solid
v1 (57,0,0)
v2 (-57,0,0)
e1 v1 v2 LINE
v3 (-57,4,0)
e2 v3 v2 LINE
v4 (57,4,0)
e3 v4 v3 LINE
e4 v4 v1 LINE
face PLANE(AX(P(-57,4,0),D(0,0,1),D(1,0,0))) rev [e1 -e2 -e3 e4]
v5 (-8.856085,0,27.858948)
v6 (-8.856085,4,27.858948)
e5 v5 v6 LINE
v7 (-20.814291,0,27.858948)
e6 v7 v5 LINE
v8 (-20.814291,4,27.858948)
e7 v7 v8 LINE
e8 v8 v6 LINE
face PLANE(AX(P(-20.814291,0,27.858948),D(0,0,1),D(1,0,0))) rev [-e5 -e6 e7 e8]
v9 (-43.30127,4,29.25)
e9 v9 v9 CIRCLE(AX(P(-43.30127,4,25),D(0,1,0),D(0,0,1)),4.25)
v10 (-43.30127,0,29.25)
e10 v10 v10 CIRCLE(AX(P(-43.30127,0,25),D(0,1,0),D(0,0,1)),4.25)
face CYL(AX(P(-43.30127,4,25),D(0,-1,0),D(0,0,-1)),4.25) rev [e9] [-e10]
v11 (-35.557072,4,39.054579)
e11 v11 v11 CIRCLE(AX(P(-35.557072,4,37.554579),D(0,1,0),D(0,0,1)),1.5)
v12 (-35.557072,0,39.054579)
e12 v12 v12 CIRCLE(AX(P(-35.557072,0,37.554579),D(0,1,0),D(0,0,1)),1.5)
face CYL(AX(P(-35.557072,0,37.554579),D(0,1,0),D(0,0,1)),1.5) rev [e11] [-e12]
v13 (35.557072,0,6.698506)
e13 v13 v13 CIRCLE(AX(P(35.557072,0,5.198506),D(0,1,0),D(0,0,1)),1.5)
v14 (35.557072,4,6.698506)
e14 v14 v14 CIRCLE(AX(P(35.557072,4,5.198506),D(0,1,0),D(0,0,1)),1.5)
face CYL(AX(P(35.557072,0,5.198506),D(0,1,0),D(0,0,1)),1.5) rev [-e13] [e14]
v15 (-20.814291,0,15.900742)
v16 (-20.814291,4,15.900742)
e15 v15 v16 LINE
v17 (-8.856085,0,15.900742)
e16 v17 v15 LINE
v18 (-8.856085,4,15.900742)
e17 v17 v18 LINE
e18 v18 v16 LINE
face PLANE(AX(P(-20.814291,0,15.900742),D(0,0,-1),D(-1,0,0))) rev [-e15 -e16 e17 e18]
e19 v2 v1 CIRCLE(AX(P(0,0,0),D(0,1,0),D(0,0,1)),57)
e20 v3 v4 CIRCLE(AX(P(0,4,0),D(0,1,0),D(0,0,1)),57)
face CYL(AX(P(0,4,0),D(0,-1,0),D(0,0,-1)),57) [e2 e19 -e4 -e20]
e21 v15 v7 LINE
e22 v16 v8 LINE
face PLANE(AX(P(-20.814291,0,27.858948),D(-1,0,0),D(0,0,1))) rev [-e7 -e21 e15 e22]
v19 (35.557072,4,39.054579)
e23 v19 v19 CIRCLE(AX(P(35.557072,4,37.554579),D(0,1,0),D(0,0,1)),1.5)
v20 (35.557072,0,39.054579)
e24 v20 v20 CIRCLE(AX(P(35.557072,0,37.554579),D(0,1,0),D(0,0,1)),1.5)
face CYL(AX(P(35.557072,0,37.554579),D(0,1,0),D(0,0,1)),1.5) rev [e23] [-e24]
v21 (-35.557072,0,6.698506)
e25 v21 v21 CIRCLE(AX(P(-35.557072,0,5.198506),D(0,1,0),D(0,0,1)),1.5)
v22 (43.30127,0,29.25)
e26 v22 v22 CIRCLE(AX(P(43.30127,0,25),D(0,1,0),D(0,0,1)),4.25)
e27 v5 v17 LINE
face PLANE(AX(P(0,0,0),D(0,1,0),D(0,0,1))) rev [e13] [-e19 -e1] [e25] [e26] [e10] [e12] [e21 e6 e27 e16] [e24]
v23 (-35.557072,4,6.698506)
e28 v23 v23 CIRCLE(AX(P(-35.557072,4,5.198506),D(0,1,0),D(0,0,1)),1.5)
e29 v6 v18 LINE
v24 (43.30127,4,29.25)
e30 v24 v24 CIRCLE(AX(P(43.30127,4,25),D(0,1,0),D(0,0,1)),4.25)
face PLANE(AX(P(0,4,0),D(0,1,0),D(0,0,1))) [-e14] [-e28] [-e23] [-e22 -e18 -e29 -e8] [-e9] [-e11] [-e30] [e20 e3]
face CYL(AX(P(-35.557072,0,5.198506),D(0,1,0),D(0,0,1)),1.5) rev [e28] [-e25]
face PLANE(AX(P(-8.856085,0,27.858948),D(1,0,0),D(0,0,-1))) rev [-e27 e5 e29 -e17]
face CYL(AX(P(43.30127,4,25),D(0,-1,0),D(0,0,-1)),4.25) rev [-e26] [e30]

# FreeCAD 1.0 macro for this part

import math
import FreeCAD as App
import Part
import Sketcher
from FreeCAD import Vector


def add_polygon(sketch, points):
    """Adds a closed chain of lines whose ends are joined by coincident constraints."""
    first, n = sketch.GeometryCount, len(points)
    for a, b in zip(points, points[1:] + points[:1]):
        sketch.addGeometry(Part.LineSegment(App.Vector(*a, 0), App.Vector(*b, 0)), False)
    for i in range(n):
        sketch.addConstraint(Sketcher.Constraint("Coincident", first + i, 2, first + (i + 1) % n, 1))

doc = App.newDocument("Part")
body = doc.addObject("PartDesign::Body", "Body")

# Sketch on XZ plane
sketch1 = body.newObject("Sketcher::SketchObject", "Sketch")
sketch1.AttachmentSupport = (doc.getObject("XZ_Plane"), [""])
sketch1.MapMode = "FlatFace"
sketch1.addGeometry(Part.LineSegment(Vector(57, 0, 0), Vector(-57, 0, 0)), False)  # 0
sketch1.addGeometry(Part.ArcOfCircle(Part.Circle(Vector(0, 0, 0), Vector(0, 0, 1), 57), math.radians(0), math.radians(180)), False)  # 1
sketch1.addGeometry(Part.Circle(Vector(43.3, 25, 0), Vector(0, 0, 1), 4.2), False)  # 2
sketch1.addGeometry(Part.Circle(Vector(-43.3, 25, 0), Vector(0, 0, 1), 4.2), False)  # 3
add_polygon(sketch1, [(-31.2, 35), (-31.2, 10), (31.2, 10), (31.2, 35)])  # lines 4-7
sketch1.addConstraint(Sketcher.Constraint("Coincident", 0, 1, 1, 1))
sketch1.addConstraint(Sketcher.Constraint("Coincident", 1, 2, 0, 2))
sketch1.addConstraint(Sketcher.Constraint("Horizontal", 0))
sketch1.addConstraint(Sketcher.Constraint("Vertical", 4))
sketch1.addConstraint(Sketcher.Constraint("Horizontal", 5))
sketch1.addConstraint(Sketcher.Constraint("Vertical", 6))
sketch1.addConstraint(Sketcher.Constraint("Horizontal", 7))
sketch1.addConstraint(Sketcher.Constraint("Coincident", 1, 3, -1, 1))
sketch1.addConstraint(Sketcher.Constraint("Equal", 2, 3))
sketch1.addConstraint(Sketcher.Constraint("Symmetric", 2, 3, 3, 3, -2))
sketch1.addConstraint(Sketcher.Constraint("PointOnObject", 0, 1, -1))
sketch1.addConstraint(Sketcher.Constraint("Radius", 1, 57.0))
sketch1.addConstraint(Sketcher.Constraint("Diameter", 2, 8.5))
sketch1.addConstraint(Sketcher.Constraint("DistanceY", 4, 2, 4, 1, 25.0))
sketch1.addConstraint(Sketcher.Constraint("DistanceX", 5, 1, 5, 2, 62.5))
sketch1.addConstraint(Sketcher.Constraint("DistanceY", -1, 1, 2, 3, 25.0))
sketch1.addConstraint(Sketcher.Constraint("DistanceY", -1, 1, 4, 2, 10.0))
sketch1.addConstraint(Sketcher.Constraint("DistanceX", 4, 2, -1, 1, 31.25))
sketch1.addConstraint(Sketcher.Constraint("DistanceX", -1, 1, 2, 3, 43.30127))
pad1 = body.newObject("PartDesign::Pad", "Pad")
pad1.Profile = sketch1
pad1.Length = 4
pad1.Reversed = True

# Sketch on XZ plane
sketch2 = body.newObject("Sketcher::SketchObject", "Sketch001")
sketch2.AttachmentSupport = (doc.getObject("XZ_Plane"), [""])
sketch2.MapMode = "FlatFace"
sketch2.AttachmentOffset = App.Placement(Vector(0, 0, -4), App.Rotation())
sketch2.addGeometry(Part.Circle(Vector(-35.6, 37.6, 0), Vector(0, 0, 1), 1.5), False)
sketch2.addGeometry(Part.Circle(Vector(-35.6, 5.2, 0), Vector(0, 0, 1), 1.5), False)
sketch2.addGeometry(Part.Circle(Vector(35.6, 5.2, 0), Vector(0, 0, 1), 1.5), False)
sketch2.addGeometry(Part.Circle(Vector(35.6, 37.6, 0), Vector(0, 0, 1), 1.5), False)
sketch2.addConstraint(Sketcher.Constraint("Equal", 0, 1))
sketch2.addConstraint(Sketcher.Constraint("Equal", 1, 2))
sketch2.addConstraint(Sketcher.Constraint("Equal", 2, 3))
sketch2.addConstraint(Sketcher.Constraint("Symmetric", 1, 3, 2, 3, -2))
sketch2.addConstraint(Sketcher.Constraint("Symmetric", 0, 3, 3, 3, -2))
sketch2.addConstraint(Sketcher.Constraint("Vertical", 0, 3, 1, 3))
sketch2.addConstraint(Sketcher.Constraint("Diameter", 0, 3.0))
sketch2.addConstraint(Sketcher.Constraint("DistanceX", 0, 3, -1, 1, 35.557072))
sketch2.addConstraint(Sketcher.Constraint("DistanceY", -1, 1, 0, 3, 37.554579))
sketch2.addConstraint(Sketcher.Constraint("DistanceY", -1, 1, 1, 3, 5.198506))
pocket1 = body.newObject("PartDesign::Pocket", "Pocket")
pocket1.Profile = sketch2
pocket1.Type = "ThroughAll"
pocket1.Reversed = True

# Sketch on XZ plane
sketch3 = body.newObject("Sketcher::SketchObject", "Sketch002")
sketch3.AttachmentSupport = (doc.getObject("XZ_Plane"), [""])
sketch3.MapMode = "FlatFace"
sketch3.AttachmentOffset = App.Placement(Vector(0, 0, -4), App.Rotation())
add_polygon(sketch3, [(-33, 9), (-33, 37), (33, 37), (33, 9)])  # lines 0-3
sketch3.addConstraint(Sketcher.Constraint("Vertical", 0))
sketch3.addConstraint(Sketcher.Constraint("Horizontal", 1))
sketch3.addConstraint(Sketcher.Constraint("Vertical", 2))
sketch3.addConstraint(Sketcher.Constraint("Horizontal", 3))
sketch3.addConstraint(Sketcher.Constraint("DistanceY", 0, 1, 0, 2, 27.920411))
sketch3.addConstraint(Sketcher.Constraint("DistanceX", 1, 1, 1, 2, 66.086844))
sketch3.addConstraint(Sketcher.Constraint("DistanceX", 0, 2, -1, 1, 33.043422))
sketch3.addConstraint(Sketcher.Constraint("DistanceY", -1, 1, 0, 2, 36.824893))
pad2 = body.newObject("PartDesign::Pad", "Pad001")
pad2.Profile = sketch3
pad2.Length = 4

# Sketch on XZ plane
sketch4 = body.newObject("Sketcher::SketchObject", "Sketch003")
sketch4.AttachmentSupport = (doc.getObject("XZ_Plane"), [""])
sketch4.MapMode = "FlatFace"
sketch4.AttachmentOffset = App.Placement(Vector(0, 0, -4), App.Rotation())
add_polygon(sketch4, [(-21, 16), (-21, 28), (-9, 28), (-9, 16)])  # lines 0-3
sketch4.addConstraint(Sketcher.Constraint("Vertical", 0))
sketch4.addConstraint(Sketcher.Constraint("Horizontal", 1))
sketch4.addConstraint(Sketcher.Constraint("Vertical", 2))
sketch4.addConstraint(Sketcher.Constraint("Horizontal", 3))
sketch4.addConstraint(Sketcher.Constraint("Equal", 3, 0))
sketch4.addConstraint(Sketcher.Constraint("DistanceX", 1, 1, 1, 2, 11.958205))
sketch4.addConstraint(Sketcher.Constraint("DistanceX", 0, 2, -1, 1, 20.814291))
sketch4.addConstraint(Sketcher.Constraint("DistanceY", -1, 1, 0, 2, 27.858948))
pocket2 = body.newObject("PartDesign::Pocket", "Pocket001")
pocket2.Profile = sketch4
pocket2.Type = "ThroughAll"
pocket2.Reversed = True

doc.recompute()
